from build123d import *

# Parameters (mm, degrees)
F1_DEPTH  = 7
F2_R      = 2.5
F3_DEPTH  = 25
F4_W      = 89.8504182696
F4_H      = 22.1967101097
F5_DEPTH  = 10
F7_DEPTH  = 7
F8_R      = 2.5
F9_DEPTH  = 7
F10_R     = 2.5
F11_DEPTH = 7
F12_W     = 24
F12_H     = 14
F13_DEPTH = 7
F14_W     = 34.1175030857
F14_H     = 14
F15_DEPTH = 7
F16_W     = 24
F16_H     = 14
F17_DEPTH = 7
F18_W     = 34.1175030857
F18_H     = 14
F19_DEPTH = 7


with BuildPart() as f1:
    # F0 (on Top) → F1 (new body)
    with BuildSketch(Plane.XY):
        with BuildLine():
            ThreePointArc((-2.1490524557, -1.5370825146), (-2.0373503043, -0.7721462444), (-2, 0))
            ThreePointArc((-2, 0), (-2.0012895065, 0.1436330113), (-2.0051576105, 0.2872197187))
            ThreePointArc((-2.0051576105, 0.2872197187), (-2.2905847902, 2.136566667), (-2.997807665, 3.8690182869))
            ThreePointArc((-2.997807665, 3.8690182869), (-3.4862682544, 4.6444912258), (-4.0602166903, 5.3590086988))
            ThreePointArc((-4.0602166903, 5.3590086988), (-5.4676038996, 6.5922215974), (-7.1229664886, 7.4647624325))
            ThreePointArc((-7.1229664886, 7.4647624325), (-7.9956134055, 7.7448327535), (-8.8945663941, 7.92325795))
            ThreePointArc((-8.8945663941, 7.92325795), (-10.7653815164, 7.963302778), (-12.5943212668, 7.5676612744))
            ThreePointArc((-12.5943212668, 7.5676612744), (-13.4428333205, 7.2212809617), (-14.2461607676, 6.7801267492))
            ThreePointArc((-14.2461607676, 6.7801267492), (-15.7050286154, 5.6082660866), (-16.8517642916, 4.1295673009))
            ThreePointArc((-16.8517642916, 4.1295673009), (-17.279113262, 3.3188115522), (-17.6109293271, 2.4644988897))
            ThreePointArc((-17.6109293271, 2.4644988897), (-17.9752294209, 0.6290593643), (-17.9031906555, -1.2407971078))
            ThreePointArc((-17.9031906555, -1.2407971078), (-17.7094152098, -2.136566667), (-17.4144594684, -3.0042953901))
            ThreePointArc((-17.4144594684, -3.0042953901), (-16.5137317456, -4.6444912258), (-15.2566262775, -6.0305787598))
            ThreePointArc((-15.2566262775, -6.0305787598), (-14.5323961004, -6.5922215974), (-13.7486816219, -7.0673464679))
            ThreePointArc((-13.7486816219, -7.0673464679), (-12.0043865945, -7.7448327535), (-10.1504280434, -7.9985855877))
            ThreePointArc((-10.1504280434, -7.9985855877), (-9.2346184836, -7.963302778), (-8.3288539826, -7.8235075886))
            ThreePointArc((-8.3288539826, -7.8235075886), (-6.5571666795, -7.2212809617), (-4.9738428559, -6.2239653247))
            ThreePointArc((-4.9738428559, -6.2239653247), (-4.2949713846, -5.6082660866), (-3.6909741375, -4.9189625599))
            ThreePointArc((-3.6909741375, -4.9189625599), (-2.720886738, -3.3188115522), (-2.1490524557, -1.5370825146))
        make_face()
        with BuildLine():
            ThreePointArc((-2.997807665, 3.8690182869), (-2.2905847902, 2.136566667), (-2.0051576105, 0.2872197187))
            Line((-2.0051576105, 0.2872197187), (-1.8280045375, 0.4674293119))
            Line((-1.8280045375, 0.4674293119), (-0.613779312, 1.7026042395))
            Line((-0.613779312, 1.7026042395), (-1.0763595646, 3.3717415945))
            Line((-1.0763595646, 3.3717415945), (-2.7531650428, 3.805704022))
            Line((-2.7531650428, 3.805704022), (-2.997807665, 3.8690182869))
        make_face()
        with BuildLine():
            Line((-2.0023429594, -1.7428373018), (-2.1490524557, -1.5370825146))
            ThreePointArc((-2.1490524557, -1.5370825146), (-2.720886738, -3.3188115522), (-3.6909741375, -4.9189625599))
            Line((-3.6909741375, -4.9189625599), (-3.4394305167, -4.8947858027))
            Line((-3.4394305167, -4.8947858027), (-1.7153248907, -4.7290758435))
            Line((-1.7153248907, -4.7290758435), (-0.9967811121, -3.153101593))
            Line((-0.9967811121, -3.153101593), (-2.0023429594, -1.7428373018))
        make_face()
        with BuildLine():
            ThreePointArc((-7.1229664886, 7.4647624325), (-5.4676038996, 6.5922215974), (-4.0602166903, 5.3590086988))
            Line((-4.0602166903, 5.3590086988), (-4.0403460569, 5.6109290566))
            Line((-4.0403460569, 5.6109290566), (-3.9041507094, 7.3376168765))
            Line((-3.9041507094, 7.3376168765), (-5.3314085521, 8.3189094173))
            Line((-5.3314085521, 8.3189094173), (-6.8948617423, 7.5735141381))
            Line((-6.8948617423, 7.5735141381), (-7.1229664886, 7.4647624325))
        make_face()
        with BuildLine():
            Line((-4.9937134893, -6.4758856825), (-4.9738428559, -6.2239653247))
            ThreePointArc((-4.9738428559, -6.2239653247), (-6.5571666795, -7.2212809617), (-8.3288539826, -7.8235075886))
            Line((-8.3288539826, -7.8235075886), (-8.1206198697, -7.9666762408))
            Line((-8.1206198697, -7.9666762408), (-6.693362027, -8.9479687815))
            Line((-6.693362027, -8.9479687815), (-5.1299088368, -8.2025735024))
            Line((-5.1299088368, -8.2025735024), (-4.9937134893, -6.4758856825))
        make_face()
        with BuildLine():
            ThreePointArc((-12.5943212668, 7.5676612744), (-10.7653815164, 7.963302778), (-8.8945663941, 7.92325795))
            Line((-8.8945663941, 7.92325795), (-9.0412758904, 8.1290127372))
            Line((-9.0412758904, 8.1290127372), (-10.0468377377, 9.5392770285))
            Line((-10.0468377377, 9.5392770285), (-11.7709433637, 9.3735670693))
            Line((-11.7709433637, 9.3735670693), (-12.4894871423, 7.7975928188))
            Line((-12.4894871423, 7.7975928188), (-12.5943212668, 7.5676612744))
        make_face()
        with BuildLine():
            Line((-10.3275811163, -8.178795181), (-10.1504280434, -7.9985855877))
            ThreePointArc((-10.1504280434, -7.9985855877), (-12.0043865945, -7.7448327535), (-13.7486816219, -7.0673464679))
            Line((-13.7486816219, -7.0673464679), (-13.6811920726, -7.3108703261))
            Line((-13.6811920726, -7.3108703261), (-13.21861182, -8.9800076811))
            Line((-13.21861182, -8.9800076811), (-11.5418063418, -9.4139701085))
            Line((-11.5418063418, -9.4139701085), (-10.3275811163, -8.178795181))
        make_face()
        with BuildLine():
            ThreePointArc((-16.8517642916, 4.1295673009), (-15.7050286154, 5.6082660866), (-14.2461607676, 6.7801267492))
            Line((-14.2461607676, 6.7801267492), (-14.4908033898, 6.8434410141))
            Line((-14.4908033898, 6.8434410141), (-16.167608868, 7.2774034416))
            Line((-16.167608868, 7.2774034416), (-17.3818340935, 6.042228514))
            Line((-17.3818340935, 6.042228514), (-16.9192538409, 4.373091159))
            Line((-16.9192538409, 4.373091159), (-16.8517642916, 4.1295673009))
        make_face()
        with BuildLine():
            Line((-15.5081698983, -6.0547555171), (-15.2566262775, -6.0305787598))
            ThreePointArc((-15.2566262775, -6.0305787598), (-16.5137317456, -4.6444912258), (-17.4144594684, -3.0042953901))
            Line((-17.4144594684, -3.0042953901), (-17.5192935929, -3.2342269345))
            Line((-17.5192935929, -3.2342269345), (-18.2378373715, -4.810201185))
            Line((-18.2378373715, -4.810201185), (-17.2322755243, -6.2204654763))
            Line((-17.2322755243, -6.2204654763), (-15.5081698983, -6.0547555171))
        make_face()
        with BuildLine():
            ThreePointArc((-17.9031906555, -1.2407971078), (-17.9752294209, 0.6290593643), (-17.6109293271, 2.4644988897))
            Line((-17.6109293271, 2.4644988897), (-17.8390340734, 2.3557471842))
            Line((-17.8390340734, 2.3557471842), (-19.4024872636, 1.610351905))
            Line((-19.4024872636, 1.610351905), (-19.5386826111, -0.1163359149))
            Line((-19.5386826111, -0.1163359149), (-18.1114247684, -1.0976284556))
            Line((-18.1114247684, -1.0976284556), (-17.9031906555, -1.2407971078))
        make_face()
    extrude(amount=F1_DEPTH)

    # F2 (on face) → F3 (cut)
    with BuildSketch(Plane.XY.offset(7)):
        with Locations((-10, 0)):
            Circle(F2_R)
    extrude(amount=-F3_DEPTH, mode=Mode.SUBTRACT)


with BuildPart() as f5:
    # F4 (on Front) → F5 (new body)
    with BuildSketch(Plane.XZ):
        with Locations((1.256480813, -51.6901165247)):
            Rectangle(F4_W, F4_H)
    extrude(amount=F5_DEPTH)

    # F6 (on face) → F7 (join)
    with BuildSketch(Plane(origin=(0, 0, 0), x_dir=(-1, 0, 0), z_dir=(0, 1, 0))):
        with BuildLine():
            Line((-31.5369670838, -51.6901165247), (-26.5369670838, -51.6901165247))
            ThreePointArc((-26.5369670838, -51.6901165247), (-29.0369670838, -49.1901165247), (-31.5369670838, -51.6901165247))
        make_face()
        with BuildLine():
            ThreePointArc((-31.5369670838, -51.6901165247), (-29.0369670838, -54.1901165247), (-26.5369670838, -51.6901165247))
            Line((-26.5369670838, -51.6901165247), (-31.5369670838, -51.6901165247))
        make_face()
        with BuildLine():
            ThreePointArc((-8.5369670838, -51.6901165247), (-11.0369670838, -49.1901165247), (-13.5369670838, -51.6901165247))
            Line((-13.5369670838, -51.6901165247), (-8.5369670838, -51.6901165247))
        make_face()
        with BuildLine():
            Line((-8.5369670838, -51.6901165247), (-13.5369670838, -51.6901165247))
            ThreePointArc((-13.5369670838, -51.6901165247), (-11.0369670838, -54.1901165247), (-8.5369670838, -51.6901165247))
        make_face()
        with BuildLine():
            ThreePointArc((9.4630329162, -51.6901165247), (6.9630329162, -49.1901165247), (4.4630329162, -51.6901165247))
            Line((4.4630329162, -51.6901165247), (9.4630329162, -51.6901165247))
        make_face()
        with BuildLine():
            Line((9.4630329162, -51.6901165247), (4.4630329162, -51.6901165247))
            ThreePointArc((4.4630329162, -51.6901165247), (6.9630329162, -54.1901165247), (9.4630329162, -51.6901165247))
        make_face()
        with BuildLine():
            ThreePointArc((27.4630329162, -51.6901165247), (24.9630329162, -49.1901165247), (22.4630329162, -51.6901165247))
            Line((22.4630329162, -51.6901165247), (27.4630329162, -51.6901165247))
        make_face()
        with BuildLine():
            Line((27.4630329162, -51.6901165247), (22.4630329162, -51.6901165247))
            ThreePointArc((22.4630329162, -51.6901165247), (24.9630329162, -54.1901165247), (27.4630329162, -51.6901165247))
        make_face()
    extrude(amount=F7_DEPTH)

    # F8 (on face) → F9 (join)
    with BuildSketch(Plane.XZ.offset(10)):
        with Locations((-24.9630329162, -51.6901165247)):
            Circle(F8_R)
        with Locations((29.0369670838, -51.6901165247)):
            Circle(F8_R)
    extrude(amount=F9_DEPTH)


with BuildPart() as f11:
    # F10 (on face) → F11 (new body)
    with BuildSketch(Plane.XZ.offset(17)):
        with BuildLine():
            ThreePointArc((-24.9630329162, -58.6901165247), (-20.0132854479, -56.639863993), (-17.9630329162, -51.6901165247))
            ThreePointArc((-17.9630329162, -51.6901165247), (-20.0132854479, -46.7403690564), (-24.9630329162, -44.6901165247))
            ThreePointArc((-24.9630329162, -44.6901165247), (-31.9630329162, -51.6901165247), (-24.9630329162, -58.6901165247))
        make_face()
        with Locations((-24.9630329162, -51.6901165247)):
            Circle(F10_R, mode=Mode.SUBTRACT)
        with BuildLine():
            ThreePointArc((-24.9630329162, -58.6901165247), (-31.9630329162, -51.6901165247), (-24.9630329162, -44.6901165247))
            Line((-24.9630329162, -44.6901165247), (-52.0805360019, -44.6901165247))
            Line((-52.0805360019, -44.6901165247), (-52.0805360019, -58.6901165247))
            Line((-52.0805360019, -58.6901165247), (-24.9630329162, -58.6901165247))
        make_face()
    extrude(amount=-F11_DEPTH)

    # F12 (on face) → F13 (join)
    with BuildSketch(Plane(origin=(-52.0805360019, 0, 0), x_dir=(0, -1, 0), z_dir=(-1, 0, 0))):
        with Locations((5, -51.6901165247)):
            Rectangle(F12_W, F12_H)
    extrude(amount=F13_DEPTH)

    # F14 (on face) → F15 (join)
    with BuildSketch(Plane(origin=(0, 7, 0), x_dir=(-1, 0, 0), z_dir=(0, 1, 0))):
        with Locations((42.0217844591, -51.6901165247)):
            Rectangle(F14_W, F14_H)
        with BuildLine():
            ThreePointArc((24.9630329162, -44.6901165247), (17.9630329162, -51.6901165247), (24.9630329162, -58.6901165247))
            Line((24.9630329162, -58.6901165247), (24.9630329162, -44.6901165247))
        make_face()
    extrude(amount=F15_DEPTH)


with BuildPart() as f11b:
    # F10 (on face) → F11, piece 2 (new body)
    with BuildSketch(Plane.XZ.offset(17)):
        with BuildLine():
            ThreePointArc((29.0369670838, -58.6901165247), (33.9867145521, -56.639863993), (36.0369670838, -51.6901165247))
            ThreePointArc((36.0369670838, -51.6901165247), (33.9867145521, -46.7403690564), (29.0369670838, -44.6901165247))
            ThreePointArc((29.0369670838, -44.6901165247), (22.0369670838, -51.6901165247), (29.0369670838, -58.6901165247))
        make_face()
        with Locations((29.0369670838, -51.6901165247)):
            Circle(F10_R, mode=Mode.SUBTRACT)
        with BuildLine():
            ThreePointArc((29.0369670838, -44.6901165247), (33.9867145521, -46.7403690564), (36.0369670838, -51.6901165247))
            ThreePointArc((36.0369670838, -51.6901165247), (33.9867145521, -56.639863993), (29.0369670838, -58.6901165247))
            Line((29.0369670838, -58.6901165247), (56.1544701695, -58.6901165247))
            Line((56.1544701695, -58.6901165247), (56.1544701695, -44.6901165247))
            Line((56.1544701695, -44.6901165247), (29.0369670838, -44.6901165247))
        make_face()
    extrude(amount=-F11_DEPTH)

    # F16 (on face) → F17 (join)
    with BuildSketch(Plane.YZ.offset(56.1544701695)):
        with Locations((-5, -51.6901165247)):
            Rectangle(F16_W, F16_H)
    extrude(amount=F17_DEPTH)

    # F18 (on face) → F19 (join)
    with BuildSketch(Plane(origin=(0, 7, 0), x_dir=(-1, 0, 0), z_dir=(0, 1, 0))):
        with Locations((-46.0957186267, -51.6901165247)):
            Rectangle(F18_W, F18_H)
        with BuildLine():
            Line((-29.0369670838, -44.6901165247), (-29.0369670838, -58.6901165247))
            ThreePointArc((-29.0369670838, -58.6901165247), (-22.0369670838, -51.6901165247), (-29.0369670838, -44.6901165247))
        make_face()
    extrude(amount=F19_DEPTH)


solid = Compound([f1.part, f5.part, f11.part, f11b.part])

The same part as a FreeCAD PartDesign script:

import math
import FreeCAD as App
import Part
import Sketcher
from FreeCAD import Vector

doc = App.newDocument("Part")
body = doc.addObject("PartDesign::Body", "Body")

# Sketch on XY plane
sketch1 = body.newObject("Sketcher::SketchObject", "Sketch")
sketch1.AttachmentSupport = (doc.getObject("XY_Plane"), [""])
sketch1.MapMode = "FlatFace"
sketch1.addGeometry(Part.ArcOfCircle(Part.Circle(Vector(-10, 0, 0), Vector(0, 0, 1), 8), math.radians(-11.077425), math.radians(0)), False)
sketch1.addGeometry(Part.ArcOfCircle(Part.Circle(Vector(-10, 0, 0), Vector(0, 0, 1), 8), math.radians(0), math.radians(2.057502)), False)
sketch1.addGeometry(Part.LineSegment(Vector(-2.005158, 0.28722, 0), Vector(-1.828005, 0.467429, 0)), False)
sketch1.addGeometry(Part.LineSegment(Vector(-1.828005, 0.467429, 0), Vector(-0.613779, 1.702604, 0)), False)
sketch1.addGeometry(Part.LineSegment(Vector(-0.613779, 1.702604, 0), Vector(-1.07636, 3.371742, 0)), False)
sketch1.addGeometry(Part.LineSegment(Vector(-1.07636, 3.371742, 0), Vector(-2.753165, 3.805704, 0)), False)
sketch1.addGeometry(Part.LineSegment(Vector(-2.753165, 3.805704, 0), Vector(-2.997808, 3.869018, 0)), False)
sketch1.addGeometry(Part.ArcOfCircle(Part.Circle(Vector(-10, 0, 0), Vector(0, 0, 1), 8), math.radians(28.922575), math.radians(42.057502)), False)
sketch1.addGeometry(Part.LineSegment(Vector(-4.060217, 5.359009, 0), Vector(-4.040346, 5.610929, 0)), False)
sketch1.addGeometry(Part.LineSegment(Vector(-4.040346, 5.610929, 0), Vector(-3.904151, 7.337617, 0)), False)
sketch1.addGeometry(Part.LineSegment(Vector(-3.904151, 7.337617, 0), Vector(-5.331409, 8.318909, 0)), False)
sketch1.addGeometry(Part.LineSegment(Vector(-5.331409, 8.318909, 0), Vector(-6.894862, 7.573514, 0)), False)
sketch1.addGeometry(Part.LineSegment(Vector(-6.894862, 7.573514, 0), Vector(-7.122966, 7.464762, 0)), False)
sketch1.addGeometry(Part.ArcOfCircle(Part.Circle(Vector(-10, 0, 0), Vector(0, 0, 1), 8), math.radians(68.922575), math.radians(82.057502)), False)
sketch1.addGeometry(Part.LineSegment(Vector(-8.894566, 7.923258, 0), Vector(-9.041276, 8.129013, 0)), False)
sketch1.addGeometry(Part.LineSegment(Vector(-9.041276, 8.129013, 0), Vector(-10.046838, 9.539277, 0)), False)
sketch1.addGeometry(Part.LineSegment(Vector(-10.046838, 9.539277, 0), Vector(-11.770943, 9.373567, 0)), False)
sketch1.addGeometry(Part.LineSegment(Vector(-11.770943, 9.373567, 0), Vector(-12.489487, 7.797593, 0)), False)
sketch1.addGeometry(Part.LineSegment(Vector(-12.489487, 7.797593, 0), Vector(-12.594321, 7.567661, 0)), False)
sketch1.addGeometry(Part.ArcOfCircle(Part.Circle(Vector(-10, 0, 0), Vector(0, 0, 1), 8), math.radians(108.922575), math.radians(122.057502)), False)
sketch1.addGeometry(Part.LineSegment(Vector(-14.246161, 6.780127, 0), Vector(-14.490803, 6.843441, 0)), False)
sketch1.addGeometry(Part.LineSegment(Vector(-14.490803, 6.843441, 0), Vector(-16.167609, 7.277403, 0)), False)
sketch1.addGeometry(Part.LineSegment(Vector(-16.167609, 7.277403, 0), Vector(-17.381834, 6.042229, 0)), False)
sketch1.addGeometry(Part.LineSegment(Vector(-17.381834, 6.042229, 0), Vector(-16.919254, 4.373091, 0)), False)
sketch1.addGeometry(Part.LineSegment(Vector(-16.919254, 4.373091, 0), Vector(-16.851764, 4.129567, 0)), False)
sketch1.addGeometry(Part.ArcOfCircle(Part.Circle(Vector(-10, 0, 0), Vector(0, 0, 1), 8), math.radians(148.922575), math.radians(162.057502)), False)
sketch1.addGeometry(Part.LineSegment(Vector(-17.610929, 2.464499, 0), Vector(-17.839034, 2.355747, 0)), False)
sketch1.addGeometry(Part.LineSegment(Vector(-17.839034, 2.355747, 0), Vector(-19.402487, 1.610352, 0)), False)
sketch1.addGeometry(Part.LineSegment(Vector(-19.402487, 1.610352, 0), Vector(-19.538683, -0.116336, 0)), False)
sketch1.addGeometry(Part.LineSegment(Vector(-19.538683, -0.116336, 0), Vector(-18.111425, -1.097628, 0)), False)
sketch1.addGeometry(Part.LineSegment(Vector(-18.111425, -1.097628, 0), Vector(-17.903191, -1.240797, 0)), False)
sketch1.addGeometry(Part.ArcOfCircle(Part.Circle(Vector(-10, 0, 0), Vector(0, 0, 1), 8), math.radians(-171.077425), math.radians(-157.942498)), False)
sketch1.addGeometry(Part.LineSegment(Vector(-17.414459, -3.004295, 0), Vector(-17.519294, -3.234227, 0)), False)
sketch1.addGeometry(Part.LineSegment(Vector(-17.519294, -3.234227, 0), Vector(-18.237837, -4.810201, 0)), False)
sketch1.addGeometry(Part.LineSegment(Vector(-18.237837, -4.810201, 0), Vector(-17.232276, -6.220465, 0)), False)
sketch1.addGeometry(Part.LineSegment(Vector(-17.232276, -6.220465, 0), Vector(-15.50817, -6.054756, 0)), False)
sketch1.addGeometry(Part.LineSegment(Vector(-15.50817, -6.054756, 0), Vector(-15.256626, -6.030579, 0)), False)
sketch1.addGeometry(Part.ArcOfCircle(Part.Circle(Vector(-10, 0, 0), Vector(0, 0, 1), 8), math.radians(-131.077425), math.radians(-117.942498)), False)
sketch1.addGeometry(Part.LineSegment(Vector(-13.748682, -7.067346, 0), Vector(-13.681192, -7.31087, 0)), False)
sketch1.addGeometry(Part.LineSegment(Vector(-13.681192, -7.31087, 0), Vector(-13.218612, -8.980008, 0)), False)
sketch1.addGeometry(Part.LineSegment(Vector(-13.218612, -8.980008, 0), Vector(-11.541806, -9.41397, 0)), False)
sketch1.addGeometry(Part.LineSegment(Vector(-11.541806, -9.41397, 0), Vector(-10.327581, -8.178795, 0)), False)
sketch1.addGeometry(Part.LineSegment(Vector(-10.327581, -8.178795, 0), Vector(-10.150428, -7.998586, 0)), False)
sketch1.addGeometry(Part.ArcOfCircle(Part.Circle(Vector(-10, 0, 0), Vector(0, 0, 1), 8), math.radians(-91.077425), math.radians(-77.942498)), False)
sketch1.addGeometry(Part.LineSegment(Vector(-8.328854, -7.823508, 0), Vector(-8.12062, -7.966676, 0)), False)
sketch1.addGeometry(Part.LineSegment(Vector(-8.12062, -7.966676, 0), Vector(-6.693362, -8.947969, 0)), False)
sketch1.addGeometry(Part.LineSegment(Vector(-6.693362, -8.947969, 0), Vector(-5.129909, -8.202574, 0)), False)
sketch1.addGeometry(Part.LineSegment(Vector(-5.129909, -8.202574, 0), Vector(-4.993713, -6.475886, 0)), False)
sketch1.addGeometry(Part.LineSegment(Vector(-4.993713, -6.475886, 0), Vector(-4.973843, -6.223965, 0)), False)
sketch1.addGeometry(Part.ArcOfCircle(Part.Circle(Vector(-10, 0, 0), Vector(0, 0, 1), 8), math.radians(-51.077425), math.radians(-37.942498)), False)
sketch1.addGeometry(Part.LineSegment(Vector(-3.690974, -4.918963, 0), Vector(-3.439431, -4.894786, 0)), False)
sketch1.addGeometry(Part.LineSegment(Vector(-3.439431, -4.894786, 0), Vector(-1.715325, -4.729076, 0)), False)
sketch1.addGeometry(Part.LineSegment(Vector(-1.715325, -4.729076, 0), Vector(-0.996781, -3.153102, 0)), False)
sketch1.addGeometry(Part.LineSegment(Vector(-0.996781, -3.153102, 0), Vector(-2.002343, -1.742837, 0)), False)
sketch1.addGeometry(Part.LineSegment(Vector(-2.002343, -1.742837, 0), Vector(-2.149052, -1.537083, 0)), False)
sketch1.addConstraint(Sketcher.Constraint("Tangent", 0, 2, 1, 1))
sketch1.addConstraint(Sketcher.Constraint("Coincident", 1, 2, 2, 1))
sketch1.addConstraint(Sketcher.Constraint("Coincident", 2, 2, 3, 1))
sketch1.addConstraint(Sketcher.Constraint("Coincident", 3, 2, 4, 1))
sketch1.addConstraint(Sketcher.Constraint("Coincident", 4, 2, 5, 1))
sketch1.addConstraint(Sketcher.Constraint("Coincident", 5, 2, 6, 1))
sketch1.addConstraint(Sketcher.Constraint("Coincident", 6, 2, 7, 1))
sketch1.addConstraint(Sketcher.Constraint("Coincident", 7, 2, 8, 1))
sketch1.addConstraint(Sketcher.Constraint("Coincident", 8, 2, 9, 1))
sketch1.addConstraint(Sketcher.Constraint("Coincident", 9, 2, 10, 1))
sketch1.addConstraint(Sketcher.Constraint("Coincident", 10, 2, 11, 1))
sketch1.addConstraint(Sketcher.Constraint("Coincident", 11, 2, 12, 1))
sketch1.addConstraint(Sketcher.Constraint("Coincident", 12, 2, 13, 1))
sketch1.addConstraint(Sketcher.Constraint("Coincident", 13, 2, 14, 1))
sketch1.addConstraint(Sketcher.Constraint("Coincident", 14, 2, 15, 1))
sketch1.addConstraint(Sketcher.Constraint("Coincident", 15, 2, 16, 1))
sketch1.addConstraint(Sketcher.Constraint("Coincident", 16, 2, 17, 1))
sketch1.addConstraint(Sketcher.Constraint("Coincident", 17, 2, 18, 1))
sketch1.addConstraint(Sketcher.Constraint("Coincident", 18, 2, 19, 1))
sketch1.addConstraint(Sketcher.Constraint("Coincident", 19, 2, 20, 1))
sketch1.addConstraint(Sketcher.Constraint("Coincident", 20, 2, 21, 1))
sketch1.addConstraint(Sketcher.Constraint("Coincident", 21, 2, 22, 1))
sketch1.addConstraint(Sketcher.Constraint("Coincident", 22, 2, 23, 1))
sketch1.addConstraint(Sketcher.Constraint("Coincident", 23, 2, 24, 1))
sketch1.addConstraint(Sketcher.Constraint("Coincident", 24, 2, 25, 1))
sketch1.addConstraint(Sketcher.Constraint("Coincident", 25, 2, 26, 1))
sketch1.addConstraint(Sketcher.Constraint("Coincident", 26, 2, 27, 1))
sketch1.addConstraint(Sketcher.Constraint("Coincident", 27, 2, 28, 1))
sketch1.addConstraint(Sketcher.Constraint("Coincident", 28, 2, 29, 1))
sketch1.addConstraint(Sketcher.Constraint("Coincident", 29, 2, 30, 1))
sketch1.addConstraint(Sketcher.Constraint("Coincident", 30, 2, 31, 1))
sketch1.addConstraint(Sketcher.Constraint("Coincident", 31, 2, 32, 1))
sketch1.addConstraint(Sketcher.Constraint("Coincident", 32, 2, 33, 1))
sketch1.addConstraint(Sketcher.Constraint("Coincident", 33, 2, 34, 1))
sketch1.addConstraint(Sketcher.Constraint("Coincident", 34, 2, 35, 1))
sketch1.addConstraint(Sketcher.Constraint("Coincident", 35, 2, 36, 1))
sketch1.addConstraint(Sketcher.Constraint("Coincident", 36, 2, 37, 1))
sketch1.addConstraint(Sketcher.Constraint("Coincident", 37, 2, 38, 1))
sketch1.addConstraint(Sketcher.Constraint("Coincident", 38, 2, 39, 1))
sketch1.addConstraint(Sketcher.Constraint("Coincident", 39, 2, 40, 1))
sketch1.addConstraint(Sketcher.Constraint("Coincident", 40, 2, 41, 1))
sketch1.addConstraint(Sketcher.Constraint("Coincident", 41, 2, 42, 1))
sketch1.addConstraint(Sketcher.Constraint("Coincident", 42, 2, 43, 1))
sketch1.addConstraint(Sketcher.Constraint("Coincident", 43, 2, 44, 1))
sketch1.addConstraint(Sketcher.Constraint("Coincident", 44, 2, 45, 1))
sketch1.addConstraint(Sketcher.Constraint("Coincident", 45, 2, 46, 1))
sketch1.addConstraint(Sketcher.Constraint("Coincident", 46, 2, 47, 1))
sketch1.addConstraint(Sketcher.Constraint("Coincident", 47, 2, 48, 1))
sketch1.addConstraint(Sketcher.Constraint("Coincident", 48, 2, 49, 1))
sketch1.addConstraint(Sketcher.Constraint("Coincident", 49, 2, 50, 1))
sketch1.addConstraint(Sketcher.Constraint("Coincident", 50, 2, 51, 1))
sketch1.addConstraint(Sketcher.Constraint("Coincident", 51, 2, 52, 1))
sketch1.addConstraint(Sketcher.Constraint("Coincident", 52, 2, 53, 1))
sketch1.addConstraint(Sketcher.Constraint("Coincident", 53, 2, 54, 1))
sketch1.addConstraint(Sketcher.Constraint("Coincident", 54, 2, 0, 1))
sketch1.addConstraint(Sketcher.Constraint("Coincident", 7, 3, 0, 3))
sketch1.addConstraint(Sketcher.Constraint("Coincident", 13, 3, 0, 3))
sketch1.addConstraint(Sketcher.Constraint("Coincident", 19, 3, 0, 3))
sketch1.addConstraint(Sketcher.Constraint("Coincident", 25, 3, 0, 3))
sketch1.addConstraint(Sketcher.Constraint("Coincident", 31, 3, 0, 3))
sketch1.addConstraint(Sketcher.Constraint("Coincident", 37, 3, 0, 3))
sketch1.addConstraint(Sketcher.Constraint("Coincident", 43, 3, 0, 3))
sketch1.addConstraint(Sketcher.Constraint("Coincident", 49, 3, 0, 3))
sketch1.addConstraint(Sketcher.Constraint("Equal", 0, 1))
sketch1.addConstraint(Sketcher.Constraint("Equal", 1, 7))
sketch1.addConstraint(Sketcher.Constraint("Equal", 7, 13))
sketch1.addConstraint(Sketcher.Constraint("Equal", 13, 19))
sketch1.addConstraint(Sketcher.Constraint("Equal", 19, 25))
sketch1.addConstraint(Sketcher.Constraint("Equal", 25, 31))
sketch1.addConstraint(Sketcher.Constraint("Equal", 31, 37))
sketch1.addConstraint(Sketcher.Constraint("Equal", 37, 43))
sketch1.addConstraint(Sketcher.Constraint("Equal", 43, 49))
sketch1.addConstraint(Sketcher.Constraint("PointOnObject", 0, 3, -1))
sketch1.addConstraint(Sketcher.Constraint("PointOnObject", 0, 2, -1))
sketch1.addConstraint(Sketcher.Constraint("Parallel", 2, 3))
sketch1.addConstraint(Sketcher.Constraint("Parallel", 5, 6))
sketch1.addConstraint(Sketcher.Constraint("Parallel", 8, 9))
sketch1.addConstraint(Sketcher.Constraint("Parallel", 11, 12))
sketch1.addConstraint(Sketcher.Constraint("Parallel", 14, 15))
sketch1.addConstraint(Sketcher.Constraint("Parallel", 17, 18))
sketch1.addConstraint(Sketcher.Constraint("Parallel", 6, 20))
sketch1.addConstraint(Sketcher.Constraint("Parallel", 20, 21))
sketch1.addConstraint(Sketcher.Constraint("Parallel", 3, 22))
sketch1.addConstraint(Sketcher.Constraint("Parallel", 4, 23))
sketch1.addConstraint(Sketcher.Constraint("Parallel", 23, 24))
sketch1.addConstraint(Sketcher.Constraint("Parallel", 12, 26))
sketch1.addConstraint(Sketcher.Constraint("Parallel", 26, 27))
sketch1.addConstraint(Sketcher.Constraint("Parallel", 9, 28))
sketch1.addConstraint(Sketcher.Constraint("Parallel", 10, 29))
sketch1.addConstraint(Sketcher.Constraint("Parallel", 29, 30))
sketch1.addConstraint(Sketcher.Constraint("Parallel", 18, 32))
sketch1.addConstraint(Sketcher.Constraint("Parallel", 32, 33))
sketch1.addConstraint(Sketcher.Constraint("Parallel", 15, 34))
sketch1.addConstraint(Sketcher.Constraint("Parallel", 16, 35))
sketch1.addConstraint(Sketcher.Constraint("Parallel", 35, 36))
sketch1.addConstraint(Sketcher.Constraint("Parallel", 24, 38))
sketch1.addConstraint(Sketcher.Constraint("Parallel", 38, 39))
sketch1.addConstraint(Sketcher.Constraint("Parallel", 21, 40))
sketch1.addConstraint(Sketcher.Constraint("Parallel", 22, 41))
sketch1.addConstraint(Sketcher.Constraint("Parallel", 41, 42))
sketch1.addConstraint(Sketcher.Constraint("Parallel", 30, 44))
sketch1.addConstraint(Sketcher.Constraint("Parallel", 44, 45))
sketch1.addConstraint(Sketcher.Constraint("Parallel", 27, 46))
sketch1.addConstraint(Sketcher.Constraint("Parallel", 28, 47))
sketch1.addConstraint(Sketcher.Constraint("Parallel", 47, 48))
sketch1.addConstraint(Sketcher.Constraint("Parallel", 36, 50))
sketch1.addConstraint(Sketcher.Constraint("Parallel", 50, 51))
sketch1.addConstraint(Sketcher.Constraint("Parallel", 33, 52))
sketch1.addConstraint(Sketcher.Constraint("Parallel", 34, 53))
sketch1.addConstraint(Sketcher.Constraint("Parallel", 53, 54))
sketch1.addConstraint(Sketcher.Constraint("Equal", 3, 4))
sketch1.addConstraint(Sketcher.Constraint("Equal", 4, 5))
sketch1.addConstraint(Sketcher.Constraint("Equal", 2, 6))
sketch1.addConstraint(Sketcher.Constraint("Equal", 6, 8))
sketch1.addConstraint(Sketcher.Constraint("Equal", 5, 9))
sketch1.addConstraint(Sketcher.Constraint("Equal", 9, 10))
sketch1.addConstraint(Sketcher.Constraint("Equal", 10, 11))
sketch1.addConstraint(Sketcher.Constraint("Equal", 8, 12))
sketch1.addConstraint(Sketcher.Constraint("Equal", 12, 14))
sketch1.addConstraint(Sketcher.Constraint("Equal", 11, 15))
sketch1.addConstraint(Sketcher.Constraint("Equal", 15, 16))
sketch1.addConstraint(Sketcher.Constraint("Equal", 16, 17))
sketch1.addConstraint(Sketcher.Constraint("Equal", 14, 18))
sketch1.addConstraint(Sketcher.Constraint("Equal", 18, 20))
sketch1.addConstraint(Sketcher.Constraint("Equal", 17, 21))
sketch1.addConstraint(Sketcher.Constraint("Equal", 21, 22))
sketch1.addConstraint(Sketcher.Constraint("Equal", 22, 23))
sketch1.addConstraint(Sketcher.Constraint("Equal", 20, 24))
sketch1.addConstraint(Sketcher.Constraint("Equal", 24, 26))
sketch1.addConstraint(Sketcher.Constraint("Equal", 23, 27))
sketch1.addConstraint(Sketcher.Constraint("Equal", 27, 28))
sketch1.addConstraint(Sketcher.Constraint("Equal", 28, 29))
sketch1.addConstraint(Sketcher.Constraint("Equal", 26, 30))
sketch1.addConstraint(Sketcher.Constraint("Equal", 30, 32))
sketch1.addConstraint(Sketcher.Constraint("Equal", 29, 33))
sketch1.addConstraint(Sketcher.Constraint("Equal", 33, 34))
sketch1.addConstraint(Sketcher.Constraint("Equal", 34, 35))
sketch1.addConstraint(Sketcher.Constraint("Equal", 32, 36))
sketch1.addConstraint(Sketcher.Constraint("Equal", 36, 38))
sketch1.addConstraint(Sketcher.Constraint("Equal", 35, 39))
sketch1.addConstraint(Sketcher.Constraint("Equal", 39, 40))
sketch1.addConstraint(Sketcher.Constraint("Equal", 40, 41))
sketch1.addConstraint(Sketcher.Constraint("Equal", 38, 42))
sketch1.addConstraint(Sketcher.Constraint("Equal", 42, 44))
sketch1.addConstraint(Sketcher.Constraint("Equal", 41, 45))
sketch1.addConstraint(Sketcher.Constraint("Equal", 45, 46))
sketch1.addConstraint(Sketcher.Constraint("Equal", 46, 47))
sketch1.addConstraint(Sketcher.Constraint("Equal", 44, 48))
sketch1.addConstraint(Sketcher.Constraint("Equal", 48, 50))
sketch1.addConstraint(Sketcher.Constraint("Equal", 47, 51))
sketch1.addConstraint(Sketcher.Constraint("Equal", 51, 52))
sketch1.addConstraint(Sketcher.Constraint("Equal", 52, 53))
sketch1.addConstraint(Sketcher.Constraint("Equal", 50, 54))
sketch1.addConstraint(Sketcher.Constraint("Radius", 0, 8.0))
sketch1.addConstraint(Sketcher.Constraint("DistanceX", 0, 3, -1, 1, 10.0))
sketch1.addConstraint(Sketcher.Constraint("DistanceY", -1, 1, 25, 2, 2.464499))
sketch1.addConstraint(Sketcher.Constraint("DistanceY", 33, 2, -1, 1, 4.810201))
sketch1.addConstraint(Sketcher.Constraint("DistanceY", 52, 2, -1, 1, 3.153102))
sketch1.addConstraint(Sketcher.Constraint("Distance", 3, 1.732051))
sketch1.addConstraint(Sketcher.Constraint("DistanceY", -1, 1, 1, 2, 0.28722))
sketch1.addConstraint(Sketcher.Constraint("DistanceY", -1, 1, 2, 2, 0.467429))
sketch1.addConstraint(Sketcher.Constraint("DistanceX", 3, 2, -1, 1, 0.613779))
sketch1.addConstraint(Sketcher.Constraint("DistanceX", 4, 2, -1, 1, 1.07636))
sketch1.addConstraint(Sketcher.Constraint("DistanceY", -1, 1, 7, 2, 5.359009))
sketch1.addConstraint(Sketcher.Constraint("DistanceX", 9, 2, -1, 1, 3.904151))
sketch1.addConstraint(Sketcher.Constraint("DistanceX", 18, 2, -1, 1, 12.594321))
pad1 = body.newObject("PartDesign::Pad", "Pad")
pad1.Profile = sketch1
pad1.Length = 7

# Sketch on XY plane
sketch2 = body.newObject("Sketcher::SketchObject", "Sketch001")
sketch2.AttachmentSupport = (doc.getObject("XY_Plane"), [""])
sketch2.MapMode = "FlatFace"
sketch2.AttachmentOffset = App.Placement(Vector(0, 0, 7), App.Rotation())
sketch2.addGeometry(Part.Circle(Vector(-10, 0, 0), Vector(0, 0, 1), 2.5), False)
sketch2.addConstraint(Sketcher.Constraint("PointOnObject", 0, 3, -1))
sketch2.addConstraint(Sketcher.Constraint("Diameter", 0, 5.0))
sketch2.addConstraint(Sketcher.Constraint("DistanceX", 0, 3, -1, 1, 10.0))
pocket1 = body.newObject("PartDesign::Pocket", "Pocket")
pocket1.Profile = sketch2
pocket1.Length = 25
body2 = doc.addObject("PartDesign::Body", "Body001")

# Sketch on XZ plane
sketch3 = body2.newObject("Sketcher::SketchObject", "Sketch002")
sketch3.AttachmentSupport = (doc.getObject("XZ_Plane001"), [""])
sketch3.MapMode = "FlatFace"
sketch3.addGeometry(Part.LineSegment(Vector(-43.668728, -40.591761, 0), Vector(-43.668728, -62.788472, 0)), False)
sketch3.addGeometry(Part.LineSegment(Vector(-43.668728, -62.788472, 0), Vector(46.18169, -62.788472, 0)), False)
sketch3.addGeometry(Part.LineSegment(Vector(46.18169, -62.788472, 0), Vector(46.18169, -40.591761, 0)), False)
sketch3.addGeometry(Part.LineSegment(Vector(46.18169, -40.591761, 0), Vector(-43.668728, -40.591761, 0)), False)
sketch3.addConstraint(Sketcher.Constraint("Coincident", 0, 2, 1, 1))
sketch3.addConstraint(Sketcher.Constraint("Coincident", 1, 2, 2, 1))
sketch3.addConstraint(Sketcher.Constraint("Coincident", 2, 2, 3, 1))
sketch3.addConstraint(Sketcher.Constraint("Coincident", 3, 2, 0, 1))
sketch3.addConstraint(Sketcher.Constraint("Vertical", 0))
sketch3.addConstraint(Sketcher.Constraint("Horizontal", 1))
sketch3.addConstraint(Sketcher.Constraint("Vertical", 2))
sketch3.addConstraint(Sketcher.Constraint("Horizontal", 3))
sketch3.addConstraint(Sketcher.Constraint("DistanceX", 1, 1, 1, 2, 89.850418))
sketch3.addConstraint(Sketcher.Constraint("DistanceY", 0, 2, 0, 1, 22.19671))
sketch3.addConstraint(Sketcher.Constraint("DistanceX", 0, 2, -1, 1, 43.668728))
sketch3.addConstraint(Sketcher.Constraint("DistanceY", 0, 2, -1, 1, 62.788472))
pad2 = body2.newObject("PartDesign::Pad", "Pad001")
pad2.Profile = sketch3
pad2.Length = 10

# Sketch on XZ plane
sketch4 = body2.newObject("Sketcher::SketchObject", "Sketch003")
sketch4.AttachmentSupport = (doc.getObject("XZ_Plane001"), [""])
sketch4.MapMode = "FlatFace"
sketch4.addGeometry(Part.Circle(Vector(29.036967, -51.690117, 0), Vector(0, 0, 1), 2.5), False)
sketch4.addGeometry(Part.Circle(Vector(11.036967, -51.690117, 0), Vector(0, 0, 1), 2.5), False)
sketch4.addGeometry(Part.Circle(Vector(-6.963033, -51.690117, 0), Vector(0, 0, 1), 2.5), False)
sketch4.addGeometry(Part.Circle(Vector(-24.963033, -51.690117, 0), Vector(0, 0, 1), 2.5), False)
sketch4.addConstraint(Sketcher.Constraint("Equal", 0, 1))
sketch4.addConstraint(Sketcher.Constraint("Equal", 1, 2))
sketch4.addConstraint(Sketcher.Constraint("Equal", 2, 3))
sketch4.addConstraint(Sketcher.Constraint("Horizontal", 0, 3, 1, 3))
sketch4.addConstraint(Sketcher.Constraint("Horizontal", 1, 3, 2, 3))
sketch4.addConstraint(Sketcher.Constraint("Horizontal", 2, 3, 3, 3))
sketch4.addConstraint(Sketcher.Constraint("Diameter", 0, 5.0))
sketch4.addConstraint(Sketcher.Constraint("DistanceX", 1, 3, 0, 3, 18.0))
sketch4.addConstraint(Sketcher.Constraint("DistanceX", 2, 3, 1, 3, 18.0))
sketch4.addConstraint(Sketcher.Constraint("DistanceX", 3, 3, 2, 3, 18.0))
sketch4.addConstraint(Sketcher.Constraint("DistanceX", -1, 1, 0, 3, 29.036967))
sketch4.addConstraint(Sketcher.Constraint("DistanceY", 0, 3, -1, 1, 51.690117))
pad3 = body2.newObject("PartDesign::Pad", "Pad002")
pad3.Profile = sketch4
pad3.Length = 7
pad3.Reversed = True

# Sketch on XZ plane
sketch5 = body2.newObject("Sketcher::SketchObject", "Sketch004")
sketch5.AttachmentSupport = (doc.getObject("XZ_Plane001"), [""])
sketch5.MapMode = "FlatFace"
sketch5.AttachmentOffset = App.Placement(Vector(0, 0, 10), App.Rotation())
sketch5.addGeometry(Part.Circle(Vector(-24.963033, -51.690117, 0), Vector(0, 0, 1), 2.5), False)
sketch5.addGeometry(Part.Circle(Vector(29.036967, -51.690117, 0), Vector(0, 0, 1), 2.5), False)
sketch5.addConstraint(Sketcher.Constraint("Equal", 0, 1))
sketch5.addConstraint(Sketcher.Constraint("Horizontal", 0, 3, 1, 3))
sketch5.addConstraint(Sketcher.Constraint("Diameter", 0, 5.0))
sketch5.addConstraint(Sketcher.Constraint("DistanceX", 0, 3, 1, 3, 54.0))
sketch5.addConstraint(Sketcher.Constraint("DistanceX", 0, 3, -1, 1, 24.963033))
sketch5.addConstraint(Sketcher.Constraint("DistanceY", 0, 3, -1, 1, 51.690117))
pad4 = body2.newObject("PartDesign::Pad", "Pad003")
pad4.Profile = sketch5
pad4.Length = 7
body3 = doc.addObject("PartDesign::Body", "Body002")

# Sketch on XZ plane
sketch6 = body3.newObject("Sketcher::SketchObject", "Sketch005")
sketch6.AttachmentSupport = (doc.getObject("XZ_Plane002"), [""])
sketch6.MapMode = "FlatFace"
sketch6.AttachmentOffset = App.Placement(Vector(0, 0, 17), App.Rotation())
sketch6.addGeometry(Part.ArcOfCircle(Part.Circle(Vector(-24.963033, -51.690117, 0), Vector(0, 0, 1), 7), math.radians(-90), math.radians(0)), False)
sketch6.addGeometry(Part.ArcOfCircle(Part.Circle(Vector(-24.963033, -51.690117, 0), Vector(0, 0, 1), 7), math.radians(0), math.radians(90)), False)
sketch6.addGeometry(Part.LineSegment(Vector(-24.963033, -44.690117, 0), Vector(-52.080536, -44.690117, 0)), False)
sketch6.addGeometry(Part.LineSegment(Vector(-52.080536, -44.690117, 0), Vector(-52.080536, -58.690117, 0)), False)
sketch6.addGeometry(Part.LineSegment(Vector(-52.080536, -58.690117, 0), Vector(-24.963033, -58.690117, 0)), False)
sketch6.addGeometry(Part.Circle(Vector(-24.963033, -51.690117, 0), Vector(0, 0, 1), 2.5), False)
sketch6.addConstraint(Sketcher.Constraint("Tangent", 0, 2, 1, 1))
sketch6.addConstraint(Sketcher.Constraint("Tangent", 1, 2, 2, 1))
sketch6.addConstraint(Sketcher.Constraint("Coincident", 2, 2, 3, 1))
sketch6.addConstraint(Sketcher.Constraint("Coincident", 3, 2, 4, 1))
sketch6.addConstraint(Sketcher.Constraint("Tangent", 4, 2, 0, 1))
sketch6.addConstraint(Sketcher.Constraint("Horizontal", 2))
sketch6.addConstraint(Sketcher.Constraint("Vertical", 3))
sketch6.addConstraint(Sketcher.Constraint("Horizontal", 4))
sketch6.addConstraint(Sketcher.Constraint("Coincident", 5, 3, 0, 3))
sketch6.addConstraint(Sketcher.Constraint("Equal", 0, 1))
sketch6.addConstraint(Sketcher.Constraint("Horizontal", 5, 3, 0, 2))
sketch6.addConstraint(Sketcher.Constraint("Diameter", 5, 5.0))
sketch6.addConstraint(Sketcher.Constraint("Radius", 0, 7.0))
sketch6.addConstraint(Sketcher.Constraint("DistanceX", 2, 2, 2, 1, 27.117503))
sketch6.addConstraint(Sketcher.Constraint("DistanceX", 0, 3, -1, 1, 24.963033))
sketch6.addConstraint(Sketcher.Constraint("DistanceY", 0, 3, -1, 1, 51.690117))
pad5 = body3.newObject("PartDesign::Pad", "Pad004")
pad5.Profile = sketch6
pad5.Length = 7
pad5.Reversed = True

# Sketch on YZ plane
sketch7 = body3.newObject("Sketcher::SketchObject", "Sketch006")
sketch7.AttachmentSupport = (doc.getObject("YZ_Plane002"), [""])
sketch7.MapMode = "FlatFace"
sketch7.AttachmentOffset = App.Placement(Vector(0, 0, -52.080536), App.Rotation())
sketch7.addGeometry(Part.LineSegment(Vector(7, -44.690117, 0), Vector(7, -58.690117, 0)), False)
sketch7.addGeometry(Part.LineSegment(Vector(7, -58.690117, 0), Vector(-17, -58.690117, 0)), False)
sketch7.addGeometry(Part.LineSegment(Vector(-17, -58.690117, 0), Vector(-17, -44.690117, 0)), False)
sketch7.addGeometry(Part.LineSegment(Vector(-17, -44.690117, 0), Vector(7, -44.690117, 0)), False)
sketch7.addConstraint(Sketcher.Constraint("Coincident", 0, 2, 1, 1))
sketch7.addConstraint(Sketcher.Constraint("Coincident", 1, 2, 2, 1))
sketch7.addConstraint(Sketcher.Constraint("Coincident", 2, 2, 3, 1))
sketch7.addConstraint(Sketcher.Constraint("Coincident", 3, 2, 0, 1))
sketch7.addConstraint(Sketcher.Constraint("Vertical", 0))
sketch7.addConstraint(Sketcher.Constraint("Horizontal", 1))
sketch7.addConstraint(Sketcher.Constraint("Vertical", 2))
sketch7.addConstraint(Sketcher.Constraint("Horizontal", 3))
sketch7.addConstraint(Sketcher.Constraint("DistanceX", 1, 2, 1, 1, 24.0))
sketch7.addConstraint(Sketcher.Constraint("DistanceY", 0, 2, 0, 1, 14.0))
sketch7.addConstraint(Sketcher.Constraint("DistanceX", -1, 1, 0, 2, 7.0))
sketch7.addConstraint(Sketcher.Constraint("DistanceY", 0, 2, -1, 1, 58.690117))
pad6 = body3.newObject("PartDesign::Pad", "Pad005")
pad6.Profile = sketch7
pad6.Length = 7
pad6.Reversed = True

# Sketch on XZ plane
sketch8 = body3.newObject("Sketcher::SketchObject", "Sketch007")
sketch8.AttachmentSupport = (doc.getObject("XZ_Plane002"), [""])
sketch8.MapMode = "FlatFace"
sketch8.AttachmentOffset = App.Placement(Vector(0, 0, -7), App.Rotation())
sketch8.addGeometry(Part.LineSegment(Vector(-24.963033, -58.690117, 0), Vector(-59.080536, -58.690117, 0)), False)
sketch8.addGeometry(Part.LineSegment(Vector(-59.080536, -58.690117, 0), Vector(-59.080536, -44.690117, 0)), False)
sketch8.addGeometry(Part.LineSegment(Vector(-59.080536, -44.690117, 0), Vector(-24.963033, -44.690117, 0)), False)
sketch8.addGeometry(Part.ArcOfCircle(Part.Circle(Vector(-24.963033, -51.690117, 0), Vector(0, 0, 1), 7), math.radians(-90), math.radians(90)), False)
sketch8.addConstraint(Sketcher.Constraint("Coincident", 0, 2, 1, 1))
sketch8.addConstraint(Sketcher.Constraint("Coincident", 1, 2, 2, 1))
sketch8.addConstraint(Sketcher.Constraint("Tangent", 2, 2, 3, 2))
sketch8.addConstraint(Sketcher.Constraint("Tangent", 3, 1, 0, 1))
sketch8.addConstraint(Sketcher.Constraint("Horizontal", 0))
sketch8.addConstraint(Sketcher.Constraint("Vertical", 1))
sketch8.addConstraint(Sketcher.Constraint("Horizontal", 2))
sketch8.addConstraint(Sketcher.Constraint("Radius", 3, 7.0))
sketch8.addConstraint(Sketcher.Constraint("DistanceX", 0, 2, 0, 1, 34.117503))
sketch8.addConstraint(Sketcher.Constraint("DistanceX", 3, 3, -1, 1, 24.963033))
sketch8.addConstraint(Sketcher.Constraint("DistanceY", 3, 3, -1, 1, 51.690117))
pad7 = body3.newObject("PartDesign::Pad", "Pad006")
pad7.Profile = sketch8
pad7.Length = 7
pad7.Reversed = True
body4 = doc.addObject("PartDesign::Body", "Body003")

# Sketch on XZ plane
sketch9 = body4.newObject("Sketcher::SketchObject", "Sketch008")
sketch9.AttachmentSupport = (doc.getObject("XZ_Plane003"), [""])
sketch9.MapMode = "FlatFace"
sketch9.AttachmentOffset = App.Placement(Vector(0, 0, 17), App.Rotation())
sketch9.addGeometry(Part.ArcOfCircle(Part.Circle(Vector(29.036967, -51.690117, 0), Vector(0, 0, 1), 7), math.radians(90), math.radians(270)), False)
sketch9.addGeometry(Part.LineSegment(Vector(29.036967, -58.690117, 0), Vector(56.15447, -58.690117, 0)), False)
sketch9.addGeometry(Part.LineSegment(Vector(56.15447, -58.690117, 0), Vector(56.15447, -44.690117, 0)), False)
sketch9.addGeometry(Part.LineSegment(Vector(56.15447, -44.690117, 0), Vector(29.036967, -44.690117, 0)), False)
sketch9.addGeometry(Part.Circle(Vector(29.036967, -51.690117, 0), Vector(0, 0, 1), 2.5), False)
sketch9.addConstraint(Sketcher.Constraint("Tangent", 0, 2, 1, 1))
sketch9.addConstraint(Sketcher.Constraint("Coincident", 1, 2, 2, 1))
sketch9.addConstraint(Sketcher.Constraint("Coincident", 2, 2, 3, 1))
sketch9.addConstraint(Sketcher.Constraint("Tangent", 3, 2, 0, 1))
sketch9.addConstraint(Sketcher.Constraint("Horizontal", 1))
sketch9.addConstraint(Sketcher.Constraint("Vertical", 2))
sketch9.addConstraint(Sketcher.Constraint("Horizontal", 3))
sketch9.addConstraint(Sketcher.Constraint("Coincident", 4, 3, 0, 3))
sketch9.addConstraint(Sketcher.Constraint("Diameter", 4, 5.0))
sketch9.addConstraint(Sketcher.Constraint("Radius", 0, 7.0))
sketch9.addConstraint(Sketcher.Constraint("DistanceX", 1, 1, 1, 2, 27.117503))
sketch9.addConstraint(Sketcher.Constraint("DistanceX", -1, 1, 1, 2, 56.15447))
sketch9.addConstraint(Sketcher.Constraint("DistanceY", 0, 3, -1, 1, 51.690117))
pad8 = body4.newObject("PartDesign::Pad", "Pad007")
pad8.Profile = sketch9
pad8.Length = 7
pad8.Reversed = True

# Sketch on YZ plane
sketch10 = body4.newObject("Sketcher::SketchObject", "Sketch009")
sketch10.AttachmentSupport = (doc.getObject("YZ_Plane003"), [""])
sketch10.MapMode = "FlatFace"
sketch10.AttachmentOffset = App.Placement(Vector(0, 0, 56.15447), App.Rotation())
sketch10.addGeometry(Part.LineSegment(Vector(-17, -44.690117, 0), Vector(-17, -58.690117, 0)), False)
sketch10.addGeometry(Part.LineSegment(Vector(-17, -58.690117, 0), Vector(7, -58.690117, 0)), False)
sketch10.addGeometry(Part.LineSegment(Vector(7, -58.690117, 0), Vector(7, -44.690117, 0)), False)
sketch10.addGeometry(Part.LineSegment(Vector(7, -44.690117, 0), Vector(-17, -44.690117, 0)), False)
sketch10.addConstraint(Sketcher.Constraint("Coincident", 0, 2, 1, 1))
sketch10.addConstraint(Sketcher.Constraint("Coincident", 1, 2, 2, 1))
sketch10.addConstraint(Sketcher.Constraint("Coincident", 2, 2, 3, 1))
sketch10.addConstraint(Sketcher.Constraint("Coincident", 3, 2, 0, 1))
sketch10.addConstraint(Sketcher.Constraint("Vertical", 0))
sketch10.addConstraint(Sketcher.Constraint("Horizontal", 1))
sketch10.addConstraint(Sketcher.Constraint("Vertical", 2))
sketch10.addConstraint(Sketcher.Constraint("Horizontal", 3))
sketch10.addConstraint(Sketcher.Constraint("DistanceX", 1, 1, 1, 2, 24.0))
sketch10.addConstraint(Sketcher.Constraint("DistanceY", 0, 2, 0, 1, 14.0))
sketch10.addConstraint(Sketcher.Constraint("DistanceX", 0, 2, -1, 1, 17.0))
sketch10.addConstraint(Sketcher.Constraint("DistanceY", 0, 2, -1, 1, 58.690117))
pad9 = body4.newObject("PartDesign::Pad", "Pad008")
pad9.Profile = sketch10
pad9.Length = 7

# Sketch on XZ plane
sketch11 = body4.newObject("Sketcher::SketchObject", "Sketch010")
sketch11.AttachmentSupport = (doc.getObject("XZ_Plane003"), [""])
sketch11.MapMode = "FlatFace"
sketch11.AttachmentOffset = App.Placement(Vector(0, 0, -7), App.Rotation())
sketch11.addGeometry(Part.LineSegment(Vector(63.15447, -44.690117, 0), Vector(63.15447, -58.690117, 0)), False)
sketch11.addGeometry(Part.LineSegment(Vector(63.15447, -58.690117, 0), Vector(29.036967, -58.690117, 0)), False)
sketch11.addGeometry(Part.ArcOfCircle(Part.Circle(Vector(29.036967, -51.690117, 0), Vector(0, 0, 1), 7), math.radians(90), math.radians(270)), False)
sketch11.addGeometry(Part.LineSegment(Vector(29.036967, -44.690117, 0), Vector(63.15447, -44.690117, 0)), False)
sketch11.addConstraint(Sketcher.Constraint("Coincident", 0, 2, 1, 1))
sketch11.addConstraint(Sketcher.Constraint("Tangent", 1, 2, 2, 2))
sketch11.addConstraint(Sketcher.Constraint("Tangent", 2, 1, 3, 1))
sketch11.addConstraint(Sketcher.Constraint("Coincident", 3, 2, 0, 1))
sketch11.addConstraint(Sketcher.Constraint("Vertical", 0))
sketch11.addConstraint(Sketcher.Constraint("Horizontal", 1))
sketch11.addConstraint(Sketcher.Constraint("Horizontal", 3))
sketch11.addConstraint(Sketcher.Constraint("Radius", 2, 7.0))
sketch11.addConstraint(Sketcher.Constraint("DistanceX", 1, 2, 1, 1, 34.117503))
sketch11.addConstraint(Sketcher.Constraint("DistanceX", -1, 1, 0, 2, 63.15447))
sketch11.addConstraint(Sketcher.Constraint("DistanceY", 2, 3, -1, 1, 51.690117))
pad10 = body4.newObject("PartDesign::Pad", "Pad009")
pad10.Profile = sketch11
pad10.Length = 7
pad10.Reversed = True

doc.recompute()
